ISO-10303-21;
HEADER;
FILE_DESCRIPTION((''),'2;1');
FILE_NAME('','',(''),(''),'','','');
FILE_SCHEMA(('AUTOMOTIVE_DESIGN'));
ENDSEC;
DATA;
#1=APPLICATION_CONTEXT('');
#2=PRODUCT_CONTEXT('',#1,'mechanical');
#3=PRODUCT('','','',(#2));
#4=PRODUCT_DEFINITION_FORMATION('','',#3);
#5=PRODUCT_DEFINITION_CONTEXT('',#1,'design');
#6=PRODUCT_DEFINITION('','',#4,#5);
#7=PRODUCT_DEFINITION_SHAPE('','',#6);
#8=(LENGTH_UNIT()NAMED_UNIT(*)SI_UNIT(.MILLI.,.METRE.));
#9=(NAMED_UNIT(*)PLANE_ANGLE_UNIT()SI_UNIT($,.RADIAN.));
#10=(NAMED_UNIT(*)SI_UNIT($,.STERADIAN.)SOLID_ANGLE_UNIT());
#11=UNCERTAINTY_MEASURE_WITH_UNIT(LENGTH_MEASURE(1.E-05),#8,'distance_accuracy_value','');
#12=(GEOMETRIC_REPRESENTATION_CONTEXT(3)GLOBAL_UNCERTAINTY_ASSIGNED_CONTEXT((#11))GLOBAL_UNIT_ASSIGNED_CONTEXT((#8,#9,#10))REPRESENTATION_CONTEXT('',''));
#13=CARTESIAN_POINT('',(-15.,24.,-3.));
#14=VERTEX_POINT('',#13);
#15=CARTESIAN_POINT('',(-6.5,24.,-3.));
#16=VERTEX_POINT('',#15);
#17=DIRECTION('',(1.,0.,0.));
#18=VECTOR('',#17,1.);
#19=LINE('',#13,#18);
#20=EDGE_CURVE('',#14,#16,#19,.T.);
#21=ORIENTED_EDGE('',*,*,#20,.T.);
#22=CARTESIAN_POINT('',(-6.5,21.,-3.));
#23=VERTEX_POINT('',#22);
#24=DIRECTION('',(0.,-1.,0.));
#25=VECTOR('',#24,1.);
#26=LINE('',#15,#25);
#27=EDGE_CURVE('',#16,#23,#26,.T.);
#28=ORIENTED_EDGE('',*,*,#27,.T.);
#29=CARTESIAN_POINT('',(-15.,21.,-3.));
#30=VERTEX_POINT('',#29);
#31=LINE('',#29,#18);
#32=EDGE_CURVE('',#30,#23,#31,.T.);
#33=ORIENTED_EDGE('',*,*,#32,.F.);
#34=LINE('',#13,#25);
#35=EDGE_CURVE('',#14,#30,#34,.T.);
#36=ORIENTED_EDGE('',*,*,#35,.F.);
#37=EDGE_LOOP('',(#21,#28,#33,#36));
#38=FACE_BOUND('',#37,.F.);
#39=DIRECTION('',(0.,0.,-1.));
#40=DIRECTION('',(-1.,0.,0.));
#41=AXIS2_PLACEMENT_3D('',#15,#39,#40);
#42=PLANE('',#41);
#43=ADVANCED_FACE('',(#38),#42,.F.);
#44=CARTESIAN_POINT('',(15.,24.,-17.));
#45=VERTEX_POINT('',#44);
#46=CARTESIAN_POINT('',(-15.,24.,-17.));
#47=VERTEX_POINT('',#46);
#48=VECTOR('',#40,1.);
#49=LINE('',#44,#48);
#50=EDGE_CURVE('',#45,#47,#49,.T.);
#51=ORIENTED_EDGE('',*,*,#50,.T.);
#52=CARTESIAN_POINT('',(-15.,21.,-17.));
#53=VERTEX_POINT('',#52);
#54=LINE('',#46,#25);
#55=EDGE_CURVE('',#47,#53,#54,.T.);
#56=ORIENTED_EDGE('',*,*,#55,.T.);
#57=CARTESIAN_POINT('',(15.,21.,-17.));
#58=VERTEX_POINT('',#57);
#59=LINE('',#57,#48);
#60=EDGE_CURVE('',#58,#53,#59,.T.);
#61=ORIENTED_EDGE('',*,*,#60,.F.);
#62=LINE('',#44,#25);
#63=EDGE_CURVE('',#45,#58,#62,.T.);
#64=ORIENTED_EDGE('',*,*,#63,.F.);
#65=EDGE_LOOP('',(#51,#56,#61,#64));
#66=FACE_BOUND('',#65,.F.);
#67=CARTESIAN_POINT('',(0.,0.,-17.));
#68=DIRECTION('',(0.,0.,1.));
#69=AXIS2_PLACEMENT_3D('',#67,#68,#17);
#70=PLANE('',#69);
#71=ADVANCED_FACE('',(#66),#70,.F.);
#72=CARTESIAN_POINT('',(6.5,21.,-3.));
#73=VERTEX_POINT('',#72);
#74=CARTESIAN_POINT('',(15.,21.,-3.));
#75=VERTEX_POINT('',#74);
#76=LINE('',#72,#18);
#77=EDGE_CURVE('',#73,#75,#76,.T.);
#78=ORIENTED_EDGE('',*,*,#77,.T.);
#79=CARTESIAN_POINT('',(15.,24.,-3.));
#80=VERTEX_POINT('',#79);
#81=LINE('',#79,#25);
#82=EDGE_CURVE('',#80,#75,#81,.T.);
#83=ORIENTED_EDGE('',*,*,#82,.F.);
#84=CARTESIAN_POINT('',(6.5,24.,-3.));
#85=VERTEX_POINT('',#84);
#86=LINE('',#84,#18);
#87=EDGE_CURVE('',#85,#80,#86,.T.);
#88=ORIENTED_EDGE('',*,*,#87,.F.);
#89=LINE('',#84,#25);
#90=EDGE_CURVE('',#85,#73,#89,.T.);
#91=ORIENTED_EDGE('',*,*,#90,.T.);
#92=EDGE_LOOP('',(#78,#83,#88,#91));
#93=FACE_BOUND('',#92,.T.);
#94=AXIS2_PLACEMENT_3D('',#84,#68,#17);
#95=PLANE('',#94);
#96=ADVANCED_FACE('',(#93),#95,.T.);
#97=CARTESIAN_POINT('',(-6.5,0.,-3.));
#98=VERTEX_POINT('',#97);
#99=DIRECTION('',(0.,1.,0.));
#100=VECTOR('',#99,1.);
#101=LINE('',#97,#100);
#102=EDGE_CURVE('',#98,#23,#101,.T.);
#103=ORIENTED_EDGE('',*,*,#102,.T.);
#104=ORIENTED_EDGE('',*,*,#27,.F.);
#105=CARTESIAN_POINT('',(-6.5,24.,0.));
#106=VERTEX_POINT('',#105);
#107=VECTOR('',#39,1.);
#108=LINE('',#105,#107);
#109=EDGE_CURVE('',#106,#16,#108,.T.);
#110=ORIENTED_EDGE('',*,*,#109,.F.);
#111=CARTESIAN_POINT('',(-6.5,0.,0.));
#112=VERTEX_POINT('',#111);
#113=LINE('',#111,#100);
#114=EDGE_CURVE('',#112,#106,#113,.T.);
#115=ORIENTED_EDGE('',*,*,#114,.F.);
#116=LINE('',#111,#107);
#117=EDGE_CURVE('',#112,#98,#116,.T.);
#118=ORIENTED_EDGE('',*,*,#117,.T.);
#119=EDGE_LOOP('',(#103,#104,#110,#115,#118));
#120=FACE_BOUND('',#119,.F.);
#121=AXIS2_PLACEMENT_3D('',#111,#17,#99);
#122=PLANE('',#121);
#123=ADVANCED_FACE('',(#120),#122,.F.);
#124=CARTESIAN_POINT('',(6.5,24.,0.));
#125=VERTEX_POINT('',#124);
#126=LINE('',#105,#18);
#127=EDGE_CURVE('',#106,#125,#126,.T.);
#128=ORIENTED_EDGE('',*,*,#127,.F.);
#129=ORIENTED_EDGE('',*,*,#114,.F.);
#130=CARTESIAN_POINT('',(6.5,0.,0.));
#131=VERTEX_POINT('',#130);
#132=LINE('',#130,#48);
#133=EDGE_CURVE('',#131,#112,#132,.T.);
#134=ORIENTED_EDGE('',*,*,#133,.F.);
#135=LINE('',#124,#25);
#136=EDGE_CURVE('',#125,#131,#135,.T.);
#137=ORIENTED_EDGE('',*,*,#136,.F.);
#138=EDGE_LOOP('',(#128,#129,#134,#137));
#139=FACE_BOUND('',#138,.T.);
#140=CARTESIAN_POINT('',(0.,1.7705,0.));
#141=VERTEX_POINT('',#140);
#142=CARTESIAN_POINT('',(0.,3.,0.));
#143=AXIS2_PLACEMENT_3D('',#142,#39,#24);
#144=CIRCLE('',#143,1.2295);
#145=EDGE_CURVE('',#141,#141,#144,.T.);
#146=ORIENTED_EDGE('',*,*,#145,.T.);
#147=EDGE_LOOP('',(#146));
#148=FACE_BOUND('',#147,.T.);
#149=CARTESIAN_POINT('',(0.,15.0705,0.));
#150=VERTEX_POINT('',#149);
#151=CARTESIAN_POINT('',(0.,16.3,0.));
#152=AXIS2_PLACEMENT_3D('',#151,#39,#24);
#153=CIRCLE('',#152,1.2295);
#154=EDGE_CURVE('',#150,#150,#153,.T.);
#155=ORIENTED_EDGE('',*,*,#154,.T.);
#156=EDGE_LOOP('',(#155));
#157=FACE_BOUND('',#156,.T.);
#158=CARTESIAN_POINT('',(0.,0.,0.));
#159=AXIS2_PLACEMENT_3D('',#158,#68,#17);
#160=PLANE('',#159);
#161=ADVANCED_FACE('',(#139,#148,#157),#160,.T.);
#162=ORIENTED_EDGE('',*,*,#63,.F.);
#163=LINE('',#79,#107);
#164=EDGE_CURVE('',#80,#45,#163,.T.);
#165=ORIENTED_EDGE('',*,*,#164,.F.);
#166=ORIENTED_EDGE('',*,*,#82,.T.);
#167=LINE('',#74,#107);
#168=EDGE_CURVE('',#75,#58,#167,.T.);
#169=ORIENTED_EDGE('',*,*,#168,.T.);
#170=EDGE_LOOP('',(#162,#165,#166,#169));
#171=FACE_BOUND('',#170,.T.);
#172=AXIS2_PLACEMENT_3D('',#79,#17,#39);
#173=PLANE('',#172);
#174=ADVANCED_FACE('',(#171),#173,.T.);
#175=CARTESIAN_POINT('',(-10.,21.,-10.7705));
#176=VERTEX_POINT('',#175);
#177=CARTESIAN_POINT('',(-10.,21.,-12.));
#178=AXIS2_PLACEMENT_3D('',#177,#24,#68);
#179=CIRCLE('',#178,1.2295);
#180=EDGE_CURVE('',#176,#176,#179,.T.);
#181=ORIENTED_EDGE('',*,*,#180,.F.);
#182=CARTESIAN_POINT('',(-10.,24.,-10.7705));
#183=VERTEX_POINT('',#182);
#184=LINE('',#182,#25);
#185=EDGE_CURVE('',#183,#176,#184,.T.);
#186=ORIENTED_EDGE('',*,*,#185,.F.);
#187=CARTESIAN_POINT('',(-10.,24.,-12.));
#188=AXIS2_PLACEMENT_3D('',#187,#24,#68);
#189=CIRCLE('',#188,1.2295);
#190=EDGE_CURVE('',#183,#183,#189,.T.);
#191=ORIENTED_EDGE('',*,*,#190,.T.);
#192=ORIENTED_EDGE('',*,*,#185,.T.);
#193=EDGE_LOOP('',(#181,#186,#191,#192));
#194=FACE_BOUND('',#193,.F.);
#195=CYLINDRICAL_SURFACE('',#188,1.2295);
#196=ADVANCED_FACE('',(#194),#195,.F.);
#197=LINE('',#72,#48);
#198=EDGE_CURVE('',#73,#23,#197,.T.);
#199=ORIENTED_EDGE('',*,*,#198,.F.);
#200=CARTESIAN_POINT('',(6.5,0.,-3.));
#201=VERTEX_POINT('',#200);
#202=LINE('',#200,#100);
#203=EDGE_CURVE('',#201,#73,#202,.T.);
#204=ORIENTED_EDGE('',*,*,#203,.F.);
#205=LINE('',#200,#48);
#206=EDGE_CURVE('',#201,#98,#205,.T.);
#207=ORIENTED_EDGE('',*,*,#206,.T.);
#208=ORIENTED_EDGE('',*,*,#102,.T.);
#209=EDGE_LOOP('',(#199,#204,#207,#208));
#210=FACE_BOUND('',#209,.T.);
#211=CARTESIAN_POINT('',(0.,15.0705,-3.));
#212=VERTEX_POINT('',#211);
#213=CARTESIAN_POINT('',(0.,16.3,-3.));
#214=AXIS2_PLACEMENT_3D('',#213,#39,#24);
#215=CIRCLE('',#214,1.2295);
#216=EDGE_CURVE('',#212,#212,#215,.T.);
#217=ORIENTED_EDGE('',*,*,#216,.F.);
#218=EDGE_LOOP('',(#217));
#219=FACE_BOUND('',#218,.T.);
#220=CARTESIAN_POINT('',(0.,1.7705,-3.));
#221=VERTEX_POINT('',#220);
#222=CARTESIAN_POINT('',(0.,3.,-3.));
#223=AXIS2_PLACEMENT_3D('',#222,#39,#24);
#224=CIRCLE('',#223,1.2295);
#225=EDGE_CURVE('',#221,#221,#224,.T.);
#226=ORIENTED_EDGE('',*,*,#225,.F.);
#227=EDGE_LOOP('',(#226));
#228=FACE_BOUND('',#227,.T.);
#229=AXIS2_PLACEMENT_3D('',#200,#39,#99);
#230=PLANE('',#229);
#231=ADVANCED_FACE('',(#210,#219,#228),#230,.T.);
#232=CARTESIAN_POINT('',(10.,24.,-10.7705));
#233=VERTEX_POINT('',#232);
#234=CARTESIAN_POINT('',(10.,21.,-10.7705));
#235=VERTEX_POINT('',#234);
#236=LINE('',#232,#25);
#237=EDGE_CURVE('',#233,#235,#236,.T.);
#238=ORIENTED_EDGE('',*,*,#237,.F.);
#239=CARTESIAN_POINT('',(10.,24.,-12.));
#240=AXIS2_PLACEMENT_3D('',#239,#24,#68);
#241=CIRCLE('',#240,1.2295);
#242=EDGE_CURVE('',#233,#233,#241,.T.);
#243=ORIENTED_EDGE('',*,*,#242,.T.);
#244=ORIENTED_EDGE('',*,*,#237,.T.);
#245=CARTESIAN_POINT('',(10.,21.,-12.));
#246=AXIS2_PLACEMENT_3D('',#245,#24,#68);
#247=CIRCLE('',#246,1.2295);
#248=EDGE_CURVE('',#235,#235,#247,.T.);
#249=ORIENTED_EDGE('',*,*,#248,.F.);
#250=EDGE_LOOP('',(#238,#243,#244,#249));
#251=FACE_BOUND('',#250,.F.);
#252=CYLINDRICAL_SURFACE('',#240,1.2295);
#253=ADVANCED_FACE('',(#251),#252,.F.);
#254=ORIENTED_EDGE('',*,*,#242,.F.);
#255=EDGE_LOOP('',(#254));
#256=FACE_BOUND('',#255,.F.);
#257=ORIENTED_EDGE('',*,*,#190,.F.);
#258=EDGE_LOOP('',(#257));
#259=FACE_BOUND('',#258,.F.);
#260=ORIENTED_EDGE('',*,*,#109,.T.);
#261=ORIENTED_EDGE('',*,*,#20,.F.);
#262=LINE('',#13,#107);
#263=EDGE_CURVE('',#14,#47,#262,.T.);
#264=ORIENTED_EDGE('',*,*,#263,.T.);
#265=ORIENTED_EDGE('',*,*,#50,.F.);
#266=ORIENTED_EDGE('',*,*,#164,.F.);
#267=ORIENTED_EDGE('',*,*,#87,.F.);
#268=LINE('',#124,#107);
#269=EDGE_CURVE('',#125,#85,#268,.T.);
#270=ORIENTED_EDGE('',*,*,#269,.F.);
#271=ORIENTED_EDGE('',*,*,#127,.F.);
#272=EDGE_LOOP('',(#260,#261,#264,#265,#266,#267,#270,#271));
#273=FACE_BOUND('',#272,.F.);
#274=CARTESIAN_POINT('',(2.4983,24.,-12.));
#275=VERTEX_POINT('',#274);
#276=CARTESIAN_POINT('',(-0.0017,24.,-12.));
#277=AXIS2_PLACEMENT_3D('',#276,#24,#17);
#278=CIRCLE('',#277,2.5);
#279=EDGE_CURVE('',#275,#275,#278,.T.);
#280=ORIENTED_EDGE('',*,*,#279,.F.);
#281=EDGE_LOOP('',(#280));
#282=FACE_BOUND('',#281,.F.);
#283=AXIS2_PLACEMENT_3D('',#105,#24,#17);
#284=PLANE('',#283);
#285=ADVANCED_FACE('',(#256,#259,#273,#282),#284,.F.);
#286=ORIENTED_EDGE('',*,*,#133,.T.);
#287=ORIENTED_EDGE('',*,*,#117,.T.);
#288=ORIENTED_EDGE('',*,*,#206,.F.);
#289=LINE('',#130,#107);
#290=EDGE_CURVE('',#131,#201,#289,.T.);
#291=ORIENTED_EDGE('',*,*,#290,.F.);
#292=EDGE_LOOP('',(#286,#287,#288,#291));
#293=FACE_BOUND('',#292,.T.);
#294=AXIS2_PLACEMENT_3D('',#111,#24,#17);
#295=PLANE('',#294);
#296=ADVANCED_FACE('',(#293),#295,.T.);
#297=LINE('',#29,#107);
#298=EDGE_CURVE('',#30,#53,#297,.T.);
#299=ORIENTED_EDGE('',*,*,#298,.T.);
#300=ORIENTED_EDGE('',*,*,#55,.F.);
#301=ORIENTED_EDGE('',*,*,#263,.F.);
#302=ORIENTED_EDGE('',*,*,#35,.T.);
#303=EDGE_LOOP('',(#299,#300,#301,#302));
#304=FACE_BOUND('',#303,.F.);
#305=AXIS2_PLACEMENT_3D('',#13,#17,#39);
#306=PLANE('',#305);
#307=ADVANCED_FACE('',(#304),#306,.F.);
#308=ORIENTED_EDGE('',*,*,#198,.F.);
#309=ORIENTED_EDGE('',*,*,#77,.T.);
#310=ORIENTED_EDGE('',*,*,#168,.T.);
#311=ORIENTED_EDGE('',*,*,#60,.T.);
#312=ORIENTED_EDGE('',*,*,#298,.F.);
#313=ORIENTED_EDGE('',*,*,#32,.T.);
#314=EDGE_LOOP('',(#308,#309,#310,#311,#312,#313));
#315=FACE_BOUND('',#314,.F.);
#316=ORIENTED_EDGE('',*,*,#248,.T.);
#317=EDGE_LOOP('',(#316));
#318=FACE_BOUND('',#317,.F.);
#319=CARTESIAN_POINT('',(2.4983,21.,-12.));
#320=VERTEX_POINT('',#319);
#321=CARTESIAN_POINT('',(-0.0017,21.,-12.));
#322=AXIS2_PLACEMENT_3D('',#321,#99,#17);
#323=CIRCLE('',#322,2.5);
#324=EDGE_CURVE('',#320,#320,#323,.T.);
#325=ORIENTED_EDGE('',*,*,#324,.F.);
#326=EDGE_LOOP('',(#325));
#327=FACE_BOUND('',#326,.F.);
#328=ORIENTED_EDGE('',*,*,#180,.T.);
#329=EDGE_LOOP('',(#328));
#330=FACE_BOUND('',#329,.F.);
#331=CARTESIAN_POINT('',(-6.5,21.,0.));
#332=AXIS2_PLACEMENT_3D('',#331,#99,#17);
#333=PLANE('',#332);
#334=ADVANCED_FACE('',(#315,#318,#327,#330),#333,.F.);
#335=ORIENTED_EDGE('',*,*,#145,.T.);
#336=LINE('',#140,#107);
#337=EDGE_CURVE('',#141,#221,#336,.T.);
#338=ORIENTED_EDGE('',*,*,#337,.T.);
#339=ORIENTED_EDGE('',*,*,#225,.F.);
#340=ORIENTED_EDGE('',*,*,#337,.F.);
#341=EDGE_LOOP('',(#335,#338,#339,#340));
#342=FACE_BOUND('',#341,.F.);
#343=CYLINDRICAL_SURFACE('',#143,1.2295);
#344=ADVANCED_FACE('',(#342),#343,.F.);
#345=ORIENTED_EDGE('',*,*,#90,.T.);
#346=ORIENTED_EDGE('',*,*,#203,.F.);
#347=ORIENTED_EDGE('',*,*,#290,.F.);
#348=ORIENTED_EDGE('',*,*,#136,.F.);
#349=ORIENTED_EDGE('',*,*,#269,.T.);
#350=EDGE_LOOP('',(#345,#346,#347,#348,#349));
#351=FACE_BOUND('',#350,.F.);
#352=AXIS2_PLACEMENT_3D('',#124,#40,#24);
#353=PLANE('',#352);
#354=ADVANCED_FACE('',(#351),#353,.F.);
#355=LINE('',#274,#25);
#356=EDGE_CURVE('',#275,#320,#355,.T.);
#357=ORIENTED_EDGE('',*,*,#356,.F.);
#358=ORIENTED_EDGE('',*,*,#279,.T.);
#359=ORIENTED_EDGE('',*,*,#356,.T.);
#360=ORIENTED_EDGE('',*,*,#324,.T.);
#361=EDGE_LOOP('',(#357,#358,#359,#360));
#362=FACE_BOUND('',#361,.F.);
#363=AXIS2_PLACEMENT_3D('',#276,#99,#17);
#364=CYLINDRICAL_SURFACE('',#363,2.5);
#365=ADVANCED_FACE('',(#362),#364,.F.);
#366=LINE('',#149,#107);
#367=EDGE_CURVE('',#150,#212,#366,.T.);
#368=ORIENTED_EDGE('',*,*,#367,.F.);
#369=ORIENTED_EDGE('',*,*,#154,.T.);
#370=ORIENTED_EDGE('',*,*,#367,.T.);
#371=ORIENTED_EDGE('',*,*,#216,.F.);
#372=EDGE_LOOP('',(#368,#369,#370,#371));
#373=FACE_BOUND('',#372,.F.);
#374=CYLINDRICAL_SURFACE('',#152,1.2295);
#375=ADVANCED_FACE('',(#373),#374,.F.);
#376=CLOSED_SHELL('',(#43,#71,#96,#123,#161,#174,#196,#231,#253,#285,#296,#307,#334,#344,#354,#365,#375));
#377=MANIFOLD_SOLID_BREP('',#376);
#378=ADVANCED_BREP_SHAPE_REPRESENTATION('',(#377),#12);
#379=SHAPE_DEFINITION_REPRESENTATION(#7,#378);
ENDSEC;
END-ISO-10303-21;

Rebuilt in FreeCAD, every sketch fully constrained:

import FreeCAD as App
import Part
import Sketcher

doc = App.newDocument("Part")
body = doc.addObject("PartDesign::Body", "Body")

# Sketch on XY plane
sketch1 = doc.addObject("Sketcher::SketchObject", "Sketch")
body.addObject(sketch1)
sketch1.AttachmentSupport = (doc.XY_Plane, [""])
sketch1.MapMode = "FlatFace"
sketch1.addGeometry([
    Part.LineSegment(App.Vector(-6, 24, 0), App.Vector(-6, 0, 0)),
    Part.LineSegment(App.Vector(-6, 0, 0), App.Vector(6, 0, 0)),
    Part.LineSegment(App.Vector(6, 0, 0), App.Vector(6, 24, 0)),
    Part.LineSegment(App.Vector(6, 24, 0), App.Vector(-6, 24, 0)),
], False)
sketch1.addConstraint([
    Sketcher.Constraint("Coincident", 0, 2, 1, 1),
    Sketcher.Constraint("Coincident", 1, 2, 2, 1),
    Sketcher.Constraint("Coincident", 2, 2, 3, 1),
    Sketcher.Constraint("Coincident", 3, 2, 0, 1),
    Sketcher.Constraint("Vertical", 0),
    Sketcher.Constraint("Horizontal", 1),
    Sketcher.Constraint("Vertical", 2),
    Sketcher.Constraint("Horizontal", 3),
    Sketcher.Constraint("Symmetric", 0, 2, 1, 2, -1, 1),
    Sketcher.Constraint("DistanceX", 1, 1, 1, 2, 13.0),
    Sketcher.Constraint("DistanceY", 0, 2, 0, 1, 24.0),
])
pad1 = doc.addObject("PartDesign::Pad", "Pad")
body.addObject(pad1)
pad1.Profile = sketch1
pad1.Length = 17
pad1.Reversed = True

# Sketch on YZ plane
sketch2 = doc.addObject("Sketcher::SketchObject", "Sketch001")
body.addObject(sketch2)
sketch2.AttachmentSupport = (doc.YZ_Plane, [""])
sketch2.MapMode = "FlatFace"
sketch2.AttachmentOffset = App.Placement(App.Vector(0, 0, 6.5), App.Rotation())
sketch2.addGeometry([
    Part.LineSegment(App.Vector(0, -17, 0), App.Vector(21, -17, 0)),
    Part.LineSegment(App.Vector(21, -17, 0), App.Vector(21, -3, 0)),
    Part.LineSegment(App.Vector(21, -3, 0), App.Vector(0, -3, 0)),
    Part.LineSegment(App.Vector(0, -3, 0), App.Vector(0, -17, 0)),
], False)
sketch2.addConstraint([
    Sketcher.Constraint("Coincident", 0, 2, 1, 1),
    Sketcher.Constraint("Coincident", 1, 2, 2, 1),
    Sketcher.Constraint("Coincident", 2, 2, 3, 1),
    Sketcher.Constraint("Coincident", 3, 2, 0, 1),
    Sketcher.Constraint("Horizontal", 0),
    Sketcher.Constraint("Vertical", 1),
    Sketcher.Constraint("Horizontal", 2),
    Sketcher.Constraint("Vertical", 3),
    Sketcher.Constraint("PointOnObject", 2, 2, -2),
    Sketcher.Constraint("DistanceX", 0, 1, 0, 2, 21.0),
    Sketcher.Constraint("DistanceY", 1, 1, 1, 2, 14.0),
    Sketcher.Constraint("DistanceY", 0, 2, -1, 1, 17.0),
])
pocket1 = doc.addObject("PartDesign::Pocket", "Pocket")
body.addObject(pocket1)
pocket1.Profile = sketch2
pocket1.Length = 13

# Sketch on XY plane
sketch3 = doc.addObject("Sketcher::SketchObject", "Sketch002")
body.addObject(sketch3)
sketch3.AttachmentSupport = (doc.XY_Plane, [""])
sketch3.MapMode = "FlatFace"
sketch3.addGeometry([
    Part.Circle(App.Vector(0, 16.3, 0), App.Vector(0, 0, 1), 1.2),
    Part.Circle(App.Vector(0, 3, 0), App.Vector(0, 0, 1), 1.2),
], False)
sketch3.addConstraint([
    Sketcher.Constraint("Equal", 0, 1),
    Sketcher.Constraint("PointOnObject", 0, 3, -2),
    Sketcher.Constraint("PointOnObject", 1, 3, -2),
    Sketcher.Constraint("Diameter", 0, 2.459),
    Sketcher.Constraint("DistanceY", -1, 1, 1, 3, 3.0),
    Sketcher.Constraint("DistanceY", -1, 1, 0, 3, 16.3),
])
doc.recompute()
hole = doc.addObject("PartDesign::Hole", "Hole")
body.addObject(hole)
hole.Profile = sketch3
hole.ThreadType = "None"
hole.Diameter = 2.459
hole.DepthType = "ThroughAll"

# Sketch on XZ plane
sketch4 = doc.addObject("Sketcher::SketchObject", "Sketch003")
body.addObject(sketch4)
sketch4.AttachmentSupport = (doc.XZ_Plane, [""])
sketch4.MapMode = "FlatFace"
sketch4.AttachmentOffset = App.Placement(App.Vector(0, 0, -24), App.Rotation())
sketch4.addGeometry([
    Part.LineSegment(App.Vector(6, -3, 0), App.Vector(12, -3, 0)),  # 0
    Part.LineSegment(App.Vector(12, -3, 0), App.Vector(12, -17, 0)),  # 1
    Part.LineSegment(App.Vector(12, -17, 0), App.Vector(6, -17, 0)),  # 2
    Part.LineSegment(App.Vector(6, -17, 0), App.Vector(6, -3, 0)),  # 3
    Part.LineSegment(App.Vector(-6, -3, 0), App.Vector(-6, -17, 0)),  # 4
    Part.LineSegment(App.Vector(-6, -17, 0), App.Vector(-12, -17, 0)),  # 5
    Part.LineSegment(App.Vector(-12, -17, 0), App.Vector(-12, -3, 0)),  # 6
    Part.LineSegment(App.Vector(-12, -3, 0), App.Vector(-6, -3, 0)),  # 7
], False)
sketch4.addConstraint([
    Sketcher.Constraint("Coincident", 0, 2, 1, 1),
    Sketcher.Constraint("Coincident", 1, 2, 2, 1),
    Sketcher.Constraint("Coincident", 2, 2, 3, 1),
    Sketcher.Constraint("Coincident", 3, 2, 0, 1),
    Sketcher.Constraint("Coincident", 4, 2, 5, 1),
    Sketcher.Constraint("Coincident", 5, 2, 6, 1),
    Sketcher.Constraint("Coincident", 6, 2, 7, 1),
    Sketcher.Constraint("Coincident", 7, 2, 4, 1),
    Sketcher.Constraint("Horizontal", 0),
    Sketcher.Constraint("Vertical", 1),
    Sketcher.Constraint("Horizontal", 2),
    Sketcher.Constraint("Vertical", 3),
    Sketcher.Constraint("Vertical", 4),
    Sketcher.Constraint("Horizontal", 5),
    Sketcher.Constraint("Vertical", 6),
    Sketcher.Constraint("Horizontal", 7),
    Sketcher.Constraint("Symmetric", 2, 2, 4, 2, -2),
    Sketcher.Constraint("Symmetric", 0, 2, 6, 2, -2),
    Sketcher.Constraint("DistanceX", 0, 1, 0, 2, 6.0),
    Sketcher.Constraint("DistanceY", 1, 2, 1, 1, 14.0),
    Sketcher.Constraint("DistanceY", 0, 2, -1, 1, 3.0),
    Sketcher.Constraint("DistanceX", 4, 2, 2, 2, 13.0),
])
pad2 = doc.addObject("PartDesign::Pad", "Pad001")
body.addObject(pad2)
pad2.Profile = sketch4
pad2.Length = 3

# Sketch on XZ plane
sketch5 = doc.addObject("Sketcher::SketchObject", "Sketch004")
body.addObject(sketch5)
sketch5.AttachmentSupport = (doc.XZ_Plane, [""])
sketch5.MapMode = "FlatFace"
sketch5.AttachmentOffset = App.Placement(App.Vector(0, 0, -24), App.Rotation())
sketch5.addGeometry(Part.Circle(App.Vector(0, -12, 0), App.Vector(0, 0, 1), 2.5), False)
sketch5.addConstraint([
    Sketcher.Constraint("Diameter", 0, 5.0),
    Sketcher.Constraint("DistanceY", 0, 3, -1, 1, 12.0),
    Sketcher.Constraint("DistanceX", 0, 3, -1, 1, 0.0017),
])
pocket2 = doc.addObject("PartDesign::Pocket", "Pocket001")
body.addObject(pocket2)
pocket2.Profile = sketch5
pocket2.Length = 3
pocket2.Reversed = True

# Sketch on XZ plane
sketch6 = doc.addObject("Sketcher::SketchObject", "Sketch005")
body.addObject(sketch6)
sketch6.AttachmentSupport = (doc.XZ_Plane, [""])
sketch6.MapMode = "FlatFace"
sketch6.AttachmentOffset = App.Placement(App.Vector(0, 0, -24), App.Rotation())
sketch6.addGeometry([
    Part.Circle(App.Vector(10, -12, 0), App.Vector(0, 0, 1), 1.2),
    Part.Circle(App.Vector(-10, -12, 0), App.Vector(0, 0, 1), 1.2),
], False)
sketch6.addConstraint([
    Sketcher.Constraint("Equal", 0, 1),
    Sketcher.Constraint("Symmetric", 0, 3, 1, 3, -2),
    Sketcher.Constraint("Diameter", 0, 2.459),
    Sketcher.Constraint("DistanceX", -1, 1, 0, 3, 10.0),
    Sketcher.Constraint("DistanceY", 0, 3, -1, 1, 12.0),
])
doc.recompute()
hole2 = doc.addObject("PartDesign::Hole", "Hole001")
body.addObject(hole2)
hole2.Profile = sketch6
hole2.ThreadType = "None"
hole2.Diameter = 2.459
hole2.DepthType = "ThroughAll"
hole2.Reversed = True

# Sketch on XZ plane
sketch7 = doc.addObject("Sketcher::SketchObject", "Sketch006")
body.addObject(sketch7)
sketch7.AttachmentSupport = (doc.XZ_Plane, [""])
sketch7.MapMode = "FlatFace"
sketch7.AttachmentOffset = App.Placement(App.Vector(0, 0, -24), App.Rotation())
sketch7.addGeometry([
    Part.LineSegment(App.Vector(12.5, -17, 0), App.Vector(12.5, -3, 0)),  # 0
    Part.LineSegment(App.Vector(12.5, -3, 0), App.Vector(15, -3, 0)),  # 1
    Part.LineSegment(App.Vector(15, -3, 0), App.Vector(15, -17, 0)),  # 2
    Part.LineSegment(App.Vector(15, -17, 0), App.Vector(12.5, -17, 0)),  # 3
    Part.LineSegment(App.Vector(-15, -3, 0), App.Vector(-12.5, -3, 0)),  # 4
    Part.LineSegment(App.Vector(-12.5, -3, 0), App.Vector(-12.5, -17, 0)),  # 5
    Part.LineSegment(App.Vector(-12.5, -17, 0), App.Vector(-15, -17, 0)),  # 6
    Part.LineSegment(App.Vector(-15, -17, 0), App.Vector(-15, -3, 0)),  # 7
], False)
sketch7.addConstraint([
    Sketcher.Constraint("Coincident", 0, 2, 1, 1),
    Sketcher.Constraint("Coincident", 1, 2, 2, 1),
    Sketcher.Constraint("Coincident", 2, 2, 3, 1),
    Sketcher.Constraint("Coincident", 3, 2, 0, 1),
    Sketcher.Constraint("Coincident", 4, 2, 5, 1),
    Sketcher.Constraint("Coincident", 5, 2, 6, 1),
    Sketcher.Constraint("Coincident", 6, 2, 7, 1),
    Sketcher.Constraint("Coincident", 7, 2, 4, 1),
    Sketcher.Constraint("Vertical", 0),
    Sketcher.Constraint("Horizontal", 1),
    Sketcher.Constraint("Vertical", 2),
    Sketcher.Constraint("Horizontal", 3),
    Sketcher.Constraint("Horizontal", 4),
    Sketcher.Constraint("Vertical", 5),
    Sketcher.Constraint("Horizontal", 6),
    Sketcher.Constraint("Vertical", 7),
    Sketcher.Constraint("Symmetric", 0, 2, 4, 2, -2),
    Sketcher.Constraint("Symmetric", 2, 2, 6, 2, -2),
    Sketcher.Constraint("DistanceX", 1, 1, 1, 2, 2.5),
    Sketcher.Constraint("DistanceY", 0, 1, 0, 2, 14.0),
    Sketcher.Constraint("DistanceY", 0, 2, -1, 1, 3.0),
    Sketcher.Constraint("DistanceX", -1, 1, 1, 2, 15.0),
])
pad3 = doc.addObject("PartDesign::Pad", "Pad002")
body.addObject(pad3)
pad3.Profile = sketch7
pad3.Length = 3

doc.recompute()
